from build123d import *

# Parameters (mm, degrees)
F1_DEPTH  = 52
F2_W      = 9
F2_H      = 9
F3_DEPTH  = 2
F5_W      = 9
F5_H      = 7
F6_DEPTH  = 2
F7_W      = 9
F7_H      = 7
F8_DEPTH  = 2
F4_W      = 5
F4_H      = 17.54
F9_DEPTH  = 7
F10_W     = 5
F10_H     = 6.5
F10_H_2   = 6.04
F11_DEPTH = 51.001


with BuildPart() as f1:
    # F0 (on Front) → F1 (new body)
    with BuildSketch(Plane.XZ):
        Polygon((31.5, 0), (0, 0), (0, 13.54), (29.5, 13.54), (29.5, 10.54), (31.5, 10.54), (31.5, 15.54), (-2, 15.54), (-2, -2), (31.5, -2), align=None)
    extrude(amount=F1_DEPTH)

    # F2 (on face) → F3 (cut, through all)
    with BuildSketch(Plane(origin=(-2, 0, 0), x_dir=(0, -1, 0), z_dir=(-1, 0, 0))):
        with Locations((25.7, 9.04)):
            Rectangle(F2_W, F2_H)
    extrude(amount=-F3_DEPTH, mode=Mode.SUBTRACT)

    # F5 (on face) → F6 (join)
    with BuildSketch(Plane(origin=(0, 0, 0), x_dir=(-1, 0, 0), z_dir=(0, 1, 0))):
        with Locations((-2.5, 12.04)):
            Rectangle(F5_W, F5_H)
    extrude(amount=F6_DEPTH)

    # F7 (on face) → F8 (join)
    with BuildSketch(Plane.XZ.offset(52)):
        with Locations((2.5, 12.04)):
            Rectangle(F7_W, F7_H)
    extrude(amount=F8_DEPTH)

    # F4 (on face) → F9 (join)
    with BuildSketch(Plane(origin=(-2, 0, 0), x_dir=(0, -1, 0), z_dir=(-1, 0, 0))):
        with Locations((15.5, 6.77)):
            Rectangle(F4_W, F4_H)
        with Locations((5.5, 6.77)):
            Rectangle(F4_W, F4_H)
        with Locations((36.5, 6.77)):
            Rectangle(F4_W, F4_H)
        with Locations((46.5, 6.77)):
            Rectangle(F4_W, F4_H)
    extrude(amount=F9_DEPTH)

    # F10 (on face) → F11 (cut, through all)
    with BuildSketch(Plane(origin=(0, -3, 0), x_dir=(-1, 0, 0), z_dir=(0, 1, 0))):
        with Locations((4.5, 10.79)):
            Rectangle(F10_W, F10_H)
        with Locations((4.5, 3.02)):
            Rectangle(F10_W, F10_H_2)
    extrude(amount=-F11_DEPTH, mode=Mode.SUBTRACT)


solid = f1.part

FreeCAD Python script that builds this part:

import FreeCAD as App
import Part
import Sketcher

doc = App.newDocument("Part")
params = doc.addObject("Spreadsheet::Sheet", "Params")
for row, (alias, value) in enumerate([
    ("sketch1_width", "2 mm"),
    ("sketch1_height", "3 mm"),
    ("sketch1_height2", "5 mm"),
    ("sketch1_width2", "31.5 mm"),
    ("sketch1_width3", "33.5 mm"),
    ("pad1_length", "52 mm"),
    ("sketch2_width", "9 mm"),
    ("pocket1_length", "2 mm"),
    ("sketch3_width", "9 mm"),
    ("sketch3_height", "7 mm"),
    ("pad2_length", "2 mm"),
    ("sketch4_width", "9 mm"),
    ("sketch4_height", "7 mm"),
    ("pad3_length", "2 mm"),
    ("sketch5_width", "5 mm"),
    ("sketch5_height", "17.54 mm"),
    ("pad4_length", "7 mm"),
    ("sketch6_width", "5 mm"),
    ("sketch6_height", "6.5 mm"),
    ("sketch6_height2", "6.04 mm"),
], start=1):
    params.set(f"A{row}", alias)
    params.set(f"B{row}", "=" + value)
    params.setAlias(f"B{row}", alias)

body = doc.addObject("PartDesign::Body", "Body")

# Sketch on XZ plane
sketch1 = body.newObject("Sketcher::SketchObject", "Sketch")
sketch1.AttachmentSupport = (doc.getObject("XZ_Plane"), [""])
sketch1.MapMode = "FlatFace"
sketch1.addGeometry([
    Part.LineSegment(App.Vector(31.5, 0, 0), App.Vector(0, 0, 0)),  # 0
    Part.LineSegment(App.Vector(0, 0, 0), App.Vector(0, 13.5, 0)),  # 1
    Part.LineSegment(App.Vector(0, 13.5, 0), App.Vector(29.5, 13.5, 0)),  # 2
    Part.LineSegment(App.Vector(29.5, 13.5, 0), App.Vector(29.5, 10.5, 0)),  # 3
    Part.LineSegment(App.Vector(29.5, 10.5, 0), App.Vector(31.5, 10.5, 0)),  # 4
    Part.LineSegment(App.Vector(31.5, 10.5, 0), App.Vector(31.5, 15.5, 0)),  # 5
    Part.LineSegment(App.Vector(31.5, 15.5, 0), App.Vector(-2, 15.5, 0)),  # 6
    Part.LineSegment(App.Vector(-2, 15.5, 0), App.Vector(-2, -2, 0)),  # 7
    Part.LineSegment(App.Vector(-2, -2, 0), App.Vector(31.5, -2, 0)),  # 8
    Part.LineSegment(App.Vector(31.5, -2, 0), App.Vector(31.5, 0, 0)),  # 9
], False)
sketch1.addConstraint([
    Sketcher.Constraint("Coincident", 0, 2, 1, 1),
    Sketcher.Constraint("Coincident", 1, 2, 2, 1),
    Sketcher.Constraint("Coincident", 2, 2, 3, 1),
    Sketcher.Constraint("Coincident", 3, 2, 4, 1),
    Sketcher.Constraint("Coincident", 4, 2, 5, 1),
    Sketcher.Constraint("Coincident", 5, 2, 6, 1),
    Sketcher.Constraint("Coincident", 6, 2, 7, 1),
    Sketcher.Constraint("Coincident", 7, 2, 8, 1),
    Sketcher.Constraint("Coincident", 8, 2, 9, 1),
    Sketcher.Constraint("Coincident", 9, 2, 0, 1),
    Sketcher.Constraint("Horizontal", 0),
    Sketcher.Constraint("Vertical", 1),
    Sketcher.Constraint("Horizontal", 2),
    Sketcher.Constraint("Vertical", 3),
    Sketcher.Constraint("Horizontal", 4),
    Sketcher.Constraint("Vertical", 5),
    Sketcher.Constraint("Horizontal", 6),
    Sketcher.Constraint("Vertical", 7),
    Sketcher.Constraint("Horizontal", 8),
    Sketcher.Constraint("Vertical", 9),
    Sketcher.Constraint("Coincident", 0, 2, -1, 1),
    Sketcher.Constraint("Vertical", 5, 2, 8, 2),
    Sketcher.Constraint("Equal", 4, 9),
    Sketcher.Constraint("DistanceX", 4, 1, 4, 2, 2.0),
    Sketcher.Constraint("DistanceY", 3, 2, 3, 1, 3.0),
    Sketcher.Constraint("DistanceY", 5, 1, 5, 2, 5.0),
    Sketcher.Constraint("DistanceX", 0, 2, 0, 1, 31.5),
    Sketcher.Constraint("DistanceX", 6, 2, 6, 1, 33.5),
    Sketcher.Constraint("DistanceY", 1, 1, 1, 2, 13.54),
])
sketch1.setExpression("Constraints[23]", "Params.sketch1_width")
sketch1.setExpression("Constraints[24]", "Params.sketch1_height")
sketch1.setExpression("Constraints[25]", "Params.sketch1_height2")
sketch1.setExpression("Constraints[26]", "Params.sketch1_width2")
sketch1.setExpression("Constraints[27]", "Params.sketch1_width3")
pad1 = body.newObject("PartDesign::Pad", "Pad")
pad1.Profile = sketch1
pad1.setExpression("Length", "Params.pad1_length")

# Sketch on YZ plane
sketch2 = body.newObject("Sketcher::SketchObject", "Sketch001")
sketch2.AttachmentSupport = (doc.getObject("YZ_Plane"), [""])
sketch2.MapMode = "FlatFace"
sketch2.AttachmentOffset = App.Placement(App.Vector(0, 0, -2), App.Rotation())
sketch2.addGeometry([
    Part.LineSegment(App.Vector(-21, 14, 0), App.Vector(-21, 5, 0)),
    Part.LineSegment(App.Vector(-21, 5, 0), App.Vector(-30, 5, 0)),
    Part.LineSegment(App.Vector(-30, 5, 0), App.Vector(-30, 14, 0)),
    Part.LineSegment(App.Vector(-30, 14, 0), App.Vector(-21, 14, 0)),
], False)
sketch2.addConstraint([
    Sketcher.Constraint("Coincident", 0, 2, 1, 1),
    Sketcher.Constraint("Coincident", 1, 2, 2, 1),
    Sketcher.Constraint("Coincident", 2, 2, 3, 1),
    Sketcher.Constraint("Coincident", 3, 2, 0, 1),
    Sketcher.Constraint("Vertical", 0),
    Sketcher.Constraint("Horizontal", 1),
    Sketcher.Constraint("Vertical", 2),
    Sketcher.Constraint("Horizontal", 3),
    Sketcher.Constraint("Equal", 3, 0),
    Sketcher.Constraint("DistanceX", 1, 2, 1, 1, 9.0),
    Sketcher.Constraint("DistanceX", 0, 2, -1, 1, 21.2),
    Sketcher.Constraint("DistanceY", -1, 1, 0, 2, 4.54),
])
sketch2.setExpression("Constraints[9]", "Params.sketch2_width")
pocket1 = body.newObject("PartDesign::Pocket", "Pocket")
pocket1.Profile = sketch2
pocket1.setExpression("Length", "Params.pocket1_length")
pocket1.Reversed = True

# Sketch on XZ plane
sketch3 = body.newObject("Sketcher::SketchObject", "Sketch002")
sketch3.AttachmentSupport = (doc.getObject("XZ_Plane"), [""])
sketch3.MapMode = "FlatFace"
sketch3.addGeometry([
    Part.LineSegment(App.Vector(7, 16, 0), App.Vector(7, 9, 0)),
    Part.LineSegment(App.Vector(7, 9, 0), App.Vector(-2, 9, 0)),
    Part.LineSegment(App.Vector(-2, 9, 0), App.Vector(-2, 16, 0)),
    Part.LineSegment(App.Vector(-2, 16, 0), App.Vector(7, 16, 0)),
], False)
sketch3.addConstraint([
    Sketcher.Constraint("Coincident", 0, 2, 1, 1),
    Sketcher.Constraint("Coincident", 1, 2, 2, 1),
    Sketcher.Constraint("Coincident", 2, 2, 3, 1),
    Sketcher.Constraint("Coincident", 3, 2, 0, 1),
    Sketcher.Constraint("Vertical", 0),
    Sketcher.Constraint("Horizontal", 1),
    Sketcher.Constraint("Vertical", 2),
    Sketcher.Constraint("Horizontal", 3),
    Sketcher.Constraint("DistanceX", 1, 2, 1, 1, 9.0),
    Sketcher.Constraint("DistanceY", 0, 2, 0, 1, 7.0),
    Sketcher.Constraint("DistanceX", -1, 1, 0, 2, 7.0),
    Sketcher.Constraint("DistanceY", -1, 1, 0, 2, 8.54),
])
sketch3.setExpression("Constraints[8]", "Params.sketch3_width")
sketch3.setExpression("Constraints[9]", "Params.sketch3_height")
pad2 = body.newObject("PartDesign::Pad", "Pad001")
pad2.Profile = sketch3
pad2.setExpression("Length", "Params.pad2_length")
pad2.Reversed = True

# Sketch on XZ plane
sketch4 = body.newObject("Sketcher::SketchObject", "Sketch003")
sketch4.AttachmentSupport = (doc.getObject("XZ_Plane"), [""])
sketch4.MapMode = "FlatFace"
sketch4.AttachmentOffset = App.Placement(App.Vector(0, 0, 52), App.Rotation())
sketch4.addGeometry([
    Part.LineSegment(App.Vector(-2, 16, 0), App.Vector(-2, 9, 0)),
    Part.LineSegment(App.Vector(-2, 9, 0), App.Vector(7, 9, 0)),
    Part.LineSegment(App.Vector(7, 9, 0), App.Vector(7, 16, 0)),
    Part.LineSegment(App.Vector(7, 16, 0), App.Vector(-2, 16, 0)),
], False)
sketch4.addConstraint([
    Sketcher.Constraint("Coincident", 0, 2, 1, 1),
    Sketcher.Constraint("Coincident", 1, 2, 2, 1),
    Sketcher.Constraint("Coincident", 2, 2, 3, 1),
    Sketcher.Constraint("Coincident", 3, 2, 0, 1),
    Sketcher.Constraint("Vertical", 0),
    Sketcher.Constraint("Horizontal", 1),
    Sketcher.Constraint("Vertical", 2),
    Sketcher.Constraint("Horizontal", 3),
    Sketcher.Constraint("DistanceX", 1, 1, 1, 2, 9.0),
    Sketcher.Constraint("DistanceY", 0, 2, 0, 1, 7.0),
    Sketcher.Constraint("DistanceX", 0, 2, -1, 1, 2.0),
    Sketcher.Constraint("DistanceY", -1, 1, 0, 2, 8.54),
])
sketch4.setExpression("Constraints[8]", "Params.sketch4_width")
sketch4.setExpression("Constraints[9]", "Params.sketch4_height")
pad3 = body.newObject("PartDesign::Pad", "Pad002")
pad3.Profile = sketch4
pad3.setExpression("Length", "Params.pad3_length")

# Sketch on YZ plane
sketch5 = body.newObject("Sketcher::SketchObject", "Sketch004")
sketch5.AttachmentSupport = (doc.getObject("YZ_Plane"), [""])
sketch5.MapMode = "FlatFace"
sketch5.AttachmentOffset = App.Placement(App.Vector(0, 0, -2), App.Rotation())
sketch5.addGeometry([
    Part.LineSegment(App.Vector(-13, 16, 0), App.Vector(-13, -2, 0)),  # 0
    Part.LineSegment(App.Vector(-13, -2, 0), App.Vector(-18, -2, 0)),  # 1
    Part.LineSegment(App.Vector(-18, -2, 0), App.Vector(-18, 16, 0)),  # 2
    Part.LineSegment(App.Vector(-18, 16, 0), App.Vector(-13, 16, 0)),  # 3
    Part.LineSegment(App.Vector(-3, 16, 0), App.Vector(-3, -2, 0)),  # 4
    Part.LineSegment(App.Vector(-3, -2, 0), App.Vector(-8, -2, 0)),  # 5
    Part.LineSegment(App.Vector(-8, -2, 0), App.Vector(-8, 16, 0)),  # 6
    Part.LineSegment(App.Vector(-8, 16, 0), App.Vector(-3, 16, 0)),  # 7
    Part.LineSegment(App.Vector(-34, 16, 0), App.Vector(-34, -2, 0)),  # 8
    Part.LineSegment(App.Vector(-34, -2, 0), App.Vector(-39, -2, 0)),  # 9
    Part.LineSegment(App.Vector(-39, -2, 0), App.Vector(-39, 16, 0)),  # 10
    Part.LineSegment(App.Vector(-39, 16, 0), App.Vector(-34, 16, 0)),  # 11
    Part.LineSegment(App.Vector(-44, 16, 0), App.Vector(-44, -2, 0)),  # 12
    Part.LineSegment(App.Vector(-44, -2, 0), App.Vector(-49, -2, 0)),  # 13
    Part.LineSegment(App.Vector(-49, -2, 0), App.Vector(-49, 16, 0)),  # 14
    Part.LineSegment(App.Vector(-49, 16, 0), App.Vector(-44, 16, 0)),  # 15
], False)
sketch5.addConstraint([
    Sketcher.Constraint("Coincident", 0, 2, 1, 1),
    Sketcher.Constraint("Coincident", 1, 2, 2, 1),
    Sketcher.Constraint("Coincident", 2, 2, 3, 1),
    Sketcher.Constraint("Coincident", 3, 2, 0, 1),
    Sketcher.Constraint("Coincident", 4, 2, 5, 1),
    Sketcher.Constraint("Coincident", 5, 2, 6, 1),
    Sketcher.Constraint("Coincident", 6, 2, 7, 1),
    Sketcher.Constraint("Coincident", 7, 2, 4, 1),
    Sketcher.Constraint("Coincident", 8, 2, 9, 1),
    Sketcher.Constraint("Coincident", 9, 2, 10, 1),
    Sketcher.Constraint("Coincident", 10, 2, 11, 1),
    Sketcher.Constraint("Coincident", 11, 2, 8, 1),
    Sketcher.Constraint("Coincident", 12, 2, 13, 1),
    Sketcher.Constraint("Coincident", 13, 2, 14, 1),
    Sketcher.Constraint("Coincident", 14, 2, 15, 1),
    Sketcher.Constraint("Coincident", 15, 2, 12, 1),
    Sketcher.Constraint("Vertical", 0),
    Sketcher.Constraint("Horizontal", 1),
    Sketcher.Constraint("Vertical", 2),
    Sketcher.Constraint("Horizontal", 3),
    Sketcher.Constraint("Vertical", 4),
    Sketcher.Constraint("Horizontal", 5),
    Sketcher.Constraint("Vertical", 6),
    Sketcher.Constraint("Horizontal", 7),
    Sketcher.Constraint("Vertical", 8),
    Sketcher.Constraint("Horizontal", 9),
    Sketcher.Constraint("Vertical", 10),
    Sketcher.Constraint("Horizontal", 11),
    Sketcher.Constraint("Vertical", 12),
    Sketcher.Constraint("Horizontal", 13),
    Sketcher.Constraint("Vertical", 14),
    Sketcher.Constraint("Horizontal", 15),
    Sketcher.Constraint("Horizontal", 1, 2, 4, 2),
    Sketcher.Constraint("Horizontal", 3, 2, 6, 2),
    Sketcher.Constraint("Horizontal", 5, 2, 8, 2),
    Sketcher.Constraint("Horizontal", 7, 2, 10, 2),
    Sketcher.Constraint("Horizontal", 9, 2, 12, 2),
    Sketcher.Constraint("Horizontal", 11, 2, 14, 2),
    Sketcher.Constraint("Equal", 3, 5),
    Sketcher.Constraint("Equal", 7, 9),
    Sketcher.Constraint("Equal", 11, 13),
    Sketcher.Constraint("DistanceX", 1, 2, 1, 1, 5.0),
    Sketcher.Constraint("DistanceX", 0, 2, -1, 1, 13.0),
    Sketcher.Constraint("DistanceY", 0, 2, -1, 1, 2.0),
    Sketcher.Constraint("DistanceX", 4, 2, -1, 1, 3.0),
    Sketcher.Constraint("DistanceX", 8, 2, -1, 1, 34.0),
    Sketcher.Constraint("DistanceX", 12, 2, -1, 1, 44.0),
    Sketcher.Constraint("DistanceY", 0, 2, 0, 1, 17.54),
])
sketch5.setExpression("Constraints[41]", "Params.sketch5_width")
sketch5.setExpression("Constraints[47]", "Params.sketch5_height")
pad4 = body.newObject("PartDesign::Pad", "Pad003")
pad4.Profile = sketch5
pad4.setExpression("Length", "Params.pad4_length")
pad4.Reversed = True

# Sketch on XZ plane
sketch6 = body.newObject("Sketcher::SketchObject", "Sketch005")
sketch6.AttachmentSupport = (doc.getObject("XZ_Plane"), [""])
sketch6.MapMode = "FlatFace"
sketch6.AttachmentOffset = App.Placement(App.Vector(0, 0, 3), App.Rotation())
sketch6.addGeometry([
    Part.LineSegment(App.Vector(-2, 14, 0), App.Vector(-2, 8, 0)),  # 0
    Part.LineSegment(App.Vector(-2, 8, 0), App.Vector(-7, 8, 0)),  # 1
    Part.LineSegment(App.Vector(-7, 8, 0), App.Vector(-7, 14, 0)),  # 2
    Part.LineSegment(App.Vector(-7, 14, 0), App.Vector(-2, 14, 0)),  # 3
    Part.LineSegment(App.Vector(-2, 6, 0), App.Vector(-2, 0, 0)),  # 4
    Part.LineSegment(App.Vector(-2, 0, 0), App.Vector(-7, 0, 0)),  # 5
    Part.LineSegment(App.Vector(-7, 0, 0), App.Vector(-7, 6, 0)),  # 6
    Part.LineSegment(App.Vector(-7, 6, 0), App.Vector(-2, 6, 0)),  # 7
], False)
sketch6.addConstraint([
    Sketcher.Constraint("Coincident", 0, 2, 1, 1),
    Sketcher.Constraint("Coincident", 1, 2, 2, 1),
    Sketcher.Constraint("Coincident", 2, 2, 3, 1),
    Sketcher.Constraint("Coincident", 3, 2, 0, 1),
    Sketcher.Constraint("Coincident", 4, 2, 5, 1),
    Sketcher.Constraint("Coincident", 5, 2, 6, 1),
    Sketcher.Constraint("Coincident", 6, 2, 7, 1),
    Sketcher.Constraint("Coincident", 7, 2, 4, 1),
    Sketcher.Constraint("Vertical", 0),
    Sketcher.Constraint("Horizontal", 1),
    Sketcher.Constraint("Vertical", 2),
    Sketcher.Constraint("Horizontal", 3),
    Sketcher.Constraint("Vertical", 4),
    Sketcher.Constraint("Horizontal", 5),
    Sketcher.Constraint("Vertical", 6),
    Sketcher.Constraint("Horizontal", 7),
    Sketcher.Constraint("PointOnObject", 4, 2, -1),
    Sketcher.Constraint("Vertical", 3, 2, 4, 2),
    Sketcher.Constraint("Vertical", 2, 2, 5, 2),
    Sketcher.Constraint("DistanceX", 1, 2, 1, 1, 5.0),
    Sketcher.Constraint("DistanceY", 0, 2, 0, 1, 6.5),
    Sketcher.Constraint("DistanceX", 0, 2, -1, 1, 2.0),
    Sketcher.Constraint("DistanceY", 6, 2, 2, 2, 8.0),
    Sketcher.Constraint("DistanceY", 4, 2, 4, 1, 6.04),
])
sketch6.setExpression("Constraints[19]", "Params.sketch6_width")
sketch6.setExpression("Constraints[20]", "Params.sketch6_height")
sketch6.setExpression("Constraints[23]", "Params.sketch6_height2")
pocket2 = body.newObject("PartDesign::Pocket", "Pocket001")
pocket2.Profile = sketch6
pocket2.Type = "ThroughAll"
pocket2.Reversed = True

doc.recompute()
